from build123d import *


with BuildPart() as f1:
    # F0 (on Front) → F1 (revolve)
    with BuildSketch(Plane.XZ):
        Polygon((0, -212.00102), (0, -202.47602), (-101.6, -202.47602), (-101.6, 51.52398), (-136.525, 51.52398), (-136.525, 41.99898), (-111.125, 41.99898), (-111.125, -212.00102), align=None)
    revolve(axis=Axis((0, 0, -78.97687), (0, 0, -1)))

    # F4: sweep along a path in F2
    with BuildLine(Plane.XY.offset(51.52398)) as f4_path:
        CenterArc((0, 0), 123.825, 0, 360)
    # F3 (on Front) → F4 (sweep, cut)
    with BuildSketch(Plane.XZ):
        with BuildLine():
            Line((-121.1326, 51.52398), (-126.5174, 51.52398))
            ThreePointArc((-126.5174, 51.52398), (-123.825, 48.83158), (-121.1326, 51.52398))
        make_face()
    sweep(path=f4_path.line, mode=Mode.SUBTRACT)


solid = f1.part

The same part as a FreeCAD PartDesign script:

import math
import FreeCAD as App
import Part
import Sketcher
Q = App.Units.Quantity

doc = App.newDocument("Part")
body = doc.addObject("PartDesign::Body", "Body")

# Sketch on XZ plane
sketch1 = doc.addObject("Sketcher::SketchObject", "Sketch")
body.addObject(sketch1)
sketch1.AttachmentSupport = (doc.XZ_Plane, [""])
sketch1.MapMode = "FlatFace"
sketch1.addGeometry([
    Part.LineSegment(App.Vector(0, -212.00102, 0), App.Vector(0, -202.47602, 0)),  # 0
    Part.LineSegment(App.Vector(0, -202.47602, 0), App.Vector(-101.6, -202.47602, 0)),  # 1
    Part.LineSegment(App.Vector(-101.6, -202.47602, 0), App.Vector(-101.6, 51.52398, 0)),  # 2
    Part.LineSegment(App.Vector(-101.6, 51.52398, 0), App.Vector(-136.525, 51.52398, 0)),  # 3
    Part.LineSegment(App.Vector(-136.525, 51.52398, 0), App.Vector(-136.525, 41.99898, 0)),  # 4
    Part.LineSegment(App.Vector(-136.525, 41.99898, 0), App.Vector(-111.125, 41.99898, 0)),  # 5
    Part.LineSegment(App.Vector(-111.125, 41.99898, 0), App.Vector(-111.125, -212.00102, 0)),  # 6
    Part.LineSegment(App.Vector(-111.125, -212.00102, 0), App.Vector(0, -212.00102, 0)),  # 7
], False)
sketch1.addConstraint([
    Sketcher.Constraint("Coincident", 0, 2, 1, 1),
    Sketcher.Constraint("Coincident", 1, 2, 2, 1),
    Sketcher.Constraint("Coincident", 2, 2, 3, 1),
    Sketcher.Constraint("Coincident", 3, 2, 4, 1),
    Sketcher.Constraint("Coincident", 4, 2, 5, 1),
    Sketcher.Constraint("Coincident", 5, 2, 6, 1),
    Sketcher.Constraint("Coincident", 6, 2, 7, 1),
    Sketcher.Constraint("Coincident", 7, 2, 0, 1),
    Sketcher.Constraint("Vertical", 0),
    Sketcher.Constraint("Horizontal", 1),
    Sketcher.Constraint("Vertical", 2),
    Sketcher.Constraint("Horizontal", 3),
    Sketcher.Constraint("Vertical", 4),
    Sketcher.Constraint("Horizontal", 5),
    Sketcher.Constraint("Vertical", 6),
    Sketcher.Constraint("Horizontal", 7),
    Sketcher.Constraint("PointOnObject", 0, 2, -2),
    Sketcher.Constraint("Equal", 0, 4),
    Sketcher.Constraint("DistanceX", 1, 2, 1, 1, Q("4 in")),
    Sketcher.Constraint("DistanceX", 5, 1, 5, 2, Q("1 in")),
    Sketcher.Constraint("DistanceY", 2, 1, 2, 2, Q("10 in")),
    Sketcher.Constraint("DistanceX", 3, 2, 3, 1, Q("1.375 in")),
    Sketcher.Constraint("DistanceY", 0, 1, 0, 2, Q("0.375 in")),
    Sketcher.Constraint("DistanceY", 0, 2, -1, 1, Q("202.47602 mm")),
])
revolution = doc.addObject("PartDesign::Revolution", "Revolution")
body.addObject(revolution)
revolution.Profile = sketch1
revolution.ReferenceAxis = (sketch1, ["V_Axis"])
revolution.Angle = 360

# Sketch on XZ plane
sketch2 = doc.addObject("Sketcher::SketchObject", "Sketch001")
body.addObject(sketch2)
sketch2.AttachmentSupport = (doc.XZ_Plane, [""])
sketch2.MapMode = "FlatFace"
sketch2.addGeometry([
    Part.LineSegment(App.Vector(-121.1326, 51.52398, 0), App.Vector(-126.5174, 51.52398, 0)),
    Part.ArcOfCircle(Part.Circle(App.Vector(-123.825, 51.52398, 0), App.Vector(0, 0, 1), 2.6924), math.radians(180), math.radians(360)),
], False)
sketch2.addConstraint([
    Sketcher.Constraint("Coincident", 0, 1, 1, 2),
    Sketcher.Constraint("Coincident", 1, 1, 0, 2),
    Sketcher.Constraint("Horizontal", 0),
    Sketcher.Constraint("Horizontal", 1, 3, 0, 1),
    Sketcher.Constraint("Radius", 1, Q("0.106 in")),
    Sketcher.Constraint("DistanceX", 1, 3, -1, 1, Q("4.875 in")),
    Sketcher.Constraint("DistanceY", -1, 1, 1, 3, Q("51.52398 mm")),
])

# Sketch on XY plane
sketch3 = doc.addObject("Sketcher::SketchObject", "Sketch002")
body.addObject(sketch3)
sketch3.AttachmentSupport = (doc.XY_Plane, [""])
sketch3.MapMode = "FlatFace"
sketch3.AttachmentOffset = App.Placement(App.Vector(0, 0, 51.52398), App.Rotation())
sketch3.addGeometry(Part.Circle(App.Vector(0, 0, 0), App.Vector(0, 0, 1), 123.825), False)
sketch3.addConstraint([
    Sketcher.Constraint("Coincident", 0, 3, -1, 1),
    Sketcher.Constraint("Diameter", 0, Q("9.75 in")),
])
doc.recompute()

subtractivepipe = doc.addObject("PartDesign::SubtractivePipe", "SubtractivePipe")
body.addObject(subtractivepipe)
subtractivepipe.Profile = sketch2
subtractivepipe.Spine = (sketch3, ["Edge1"])

doc.recompute()
